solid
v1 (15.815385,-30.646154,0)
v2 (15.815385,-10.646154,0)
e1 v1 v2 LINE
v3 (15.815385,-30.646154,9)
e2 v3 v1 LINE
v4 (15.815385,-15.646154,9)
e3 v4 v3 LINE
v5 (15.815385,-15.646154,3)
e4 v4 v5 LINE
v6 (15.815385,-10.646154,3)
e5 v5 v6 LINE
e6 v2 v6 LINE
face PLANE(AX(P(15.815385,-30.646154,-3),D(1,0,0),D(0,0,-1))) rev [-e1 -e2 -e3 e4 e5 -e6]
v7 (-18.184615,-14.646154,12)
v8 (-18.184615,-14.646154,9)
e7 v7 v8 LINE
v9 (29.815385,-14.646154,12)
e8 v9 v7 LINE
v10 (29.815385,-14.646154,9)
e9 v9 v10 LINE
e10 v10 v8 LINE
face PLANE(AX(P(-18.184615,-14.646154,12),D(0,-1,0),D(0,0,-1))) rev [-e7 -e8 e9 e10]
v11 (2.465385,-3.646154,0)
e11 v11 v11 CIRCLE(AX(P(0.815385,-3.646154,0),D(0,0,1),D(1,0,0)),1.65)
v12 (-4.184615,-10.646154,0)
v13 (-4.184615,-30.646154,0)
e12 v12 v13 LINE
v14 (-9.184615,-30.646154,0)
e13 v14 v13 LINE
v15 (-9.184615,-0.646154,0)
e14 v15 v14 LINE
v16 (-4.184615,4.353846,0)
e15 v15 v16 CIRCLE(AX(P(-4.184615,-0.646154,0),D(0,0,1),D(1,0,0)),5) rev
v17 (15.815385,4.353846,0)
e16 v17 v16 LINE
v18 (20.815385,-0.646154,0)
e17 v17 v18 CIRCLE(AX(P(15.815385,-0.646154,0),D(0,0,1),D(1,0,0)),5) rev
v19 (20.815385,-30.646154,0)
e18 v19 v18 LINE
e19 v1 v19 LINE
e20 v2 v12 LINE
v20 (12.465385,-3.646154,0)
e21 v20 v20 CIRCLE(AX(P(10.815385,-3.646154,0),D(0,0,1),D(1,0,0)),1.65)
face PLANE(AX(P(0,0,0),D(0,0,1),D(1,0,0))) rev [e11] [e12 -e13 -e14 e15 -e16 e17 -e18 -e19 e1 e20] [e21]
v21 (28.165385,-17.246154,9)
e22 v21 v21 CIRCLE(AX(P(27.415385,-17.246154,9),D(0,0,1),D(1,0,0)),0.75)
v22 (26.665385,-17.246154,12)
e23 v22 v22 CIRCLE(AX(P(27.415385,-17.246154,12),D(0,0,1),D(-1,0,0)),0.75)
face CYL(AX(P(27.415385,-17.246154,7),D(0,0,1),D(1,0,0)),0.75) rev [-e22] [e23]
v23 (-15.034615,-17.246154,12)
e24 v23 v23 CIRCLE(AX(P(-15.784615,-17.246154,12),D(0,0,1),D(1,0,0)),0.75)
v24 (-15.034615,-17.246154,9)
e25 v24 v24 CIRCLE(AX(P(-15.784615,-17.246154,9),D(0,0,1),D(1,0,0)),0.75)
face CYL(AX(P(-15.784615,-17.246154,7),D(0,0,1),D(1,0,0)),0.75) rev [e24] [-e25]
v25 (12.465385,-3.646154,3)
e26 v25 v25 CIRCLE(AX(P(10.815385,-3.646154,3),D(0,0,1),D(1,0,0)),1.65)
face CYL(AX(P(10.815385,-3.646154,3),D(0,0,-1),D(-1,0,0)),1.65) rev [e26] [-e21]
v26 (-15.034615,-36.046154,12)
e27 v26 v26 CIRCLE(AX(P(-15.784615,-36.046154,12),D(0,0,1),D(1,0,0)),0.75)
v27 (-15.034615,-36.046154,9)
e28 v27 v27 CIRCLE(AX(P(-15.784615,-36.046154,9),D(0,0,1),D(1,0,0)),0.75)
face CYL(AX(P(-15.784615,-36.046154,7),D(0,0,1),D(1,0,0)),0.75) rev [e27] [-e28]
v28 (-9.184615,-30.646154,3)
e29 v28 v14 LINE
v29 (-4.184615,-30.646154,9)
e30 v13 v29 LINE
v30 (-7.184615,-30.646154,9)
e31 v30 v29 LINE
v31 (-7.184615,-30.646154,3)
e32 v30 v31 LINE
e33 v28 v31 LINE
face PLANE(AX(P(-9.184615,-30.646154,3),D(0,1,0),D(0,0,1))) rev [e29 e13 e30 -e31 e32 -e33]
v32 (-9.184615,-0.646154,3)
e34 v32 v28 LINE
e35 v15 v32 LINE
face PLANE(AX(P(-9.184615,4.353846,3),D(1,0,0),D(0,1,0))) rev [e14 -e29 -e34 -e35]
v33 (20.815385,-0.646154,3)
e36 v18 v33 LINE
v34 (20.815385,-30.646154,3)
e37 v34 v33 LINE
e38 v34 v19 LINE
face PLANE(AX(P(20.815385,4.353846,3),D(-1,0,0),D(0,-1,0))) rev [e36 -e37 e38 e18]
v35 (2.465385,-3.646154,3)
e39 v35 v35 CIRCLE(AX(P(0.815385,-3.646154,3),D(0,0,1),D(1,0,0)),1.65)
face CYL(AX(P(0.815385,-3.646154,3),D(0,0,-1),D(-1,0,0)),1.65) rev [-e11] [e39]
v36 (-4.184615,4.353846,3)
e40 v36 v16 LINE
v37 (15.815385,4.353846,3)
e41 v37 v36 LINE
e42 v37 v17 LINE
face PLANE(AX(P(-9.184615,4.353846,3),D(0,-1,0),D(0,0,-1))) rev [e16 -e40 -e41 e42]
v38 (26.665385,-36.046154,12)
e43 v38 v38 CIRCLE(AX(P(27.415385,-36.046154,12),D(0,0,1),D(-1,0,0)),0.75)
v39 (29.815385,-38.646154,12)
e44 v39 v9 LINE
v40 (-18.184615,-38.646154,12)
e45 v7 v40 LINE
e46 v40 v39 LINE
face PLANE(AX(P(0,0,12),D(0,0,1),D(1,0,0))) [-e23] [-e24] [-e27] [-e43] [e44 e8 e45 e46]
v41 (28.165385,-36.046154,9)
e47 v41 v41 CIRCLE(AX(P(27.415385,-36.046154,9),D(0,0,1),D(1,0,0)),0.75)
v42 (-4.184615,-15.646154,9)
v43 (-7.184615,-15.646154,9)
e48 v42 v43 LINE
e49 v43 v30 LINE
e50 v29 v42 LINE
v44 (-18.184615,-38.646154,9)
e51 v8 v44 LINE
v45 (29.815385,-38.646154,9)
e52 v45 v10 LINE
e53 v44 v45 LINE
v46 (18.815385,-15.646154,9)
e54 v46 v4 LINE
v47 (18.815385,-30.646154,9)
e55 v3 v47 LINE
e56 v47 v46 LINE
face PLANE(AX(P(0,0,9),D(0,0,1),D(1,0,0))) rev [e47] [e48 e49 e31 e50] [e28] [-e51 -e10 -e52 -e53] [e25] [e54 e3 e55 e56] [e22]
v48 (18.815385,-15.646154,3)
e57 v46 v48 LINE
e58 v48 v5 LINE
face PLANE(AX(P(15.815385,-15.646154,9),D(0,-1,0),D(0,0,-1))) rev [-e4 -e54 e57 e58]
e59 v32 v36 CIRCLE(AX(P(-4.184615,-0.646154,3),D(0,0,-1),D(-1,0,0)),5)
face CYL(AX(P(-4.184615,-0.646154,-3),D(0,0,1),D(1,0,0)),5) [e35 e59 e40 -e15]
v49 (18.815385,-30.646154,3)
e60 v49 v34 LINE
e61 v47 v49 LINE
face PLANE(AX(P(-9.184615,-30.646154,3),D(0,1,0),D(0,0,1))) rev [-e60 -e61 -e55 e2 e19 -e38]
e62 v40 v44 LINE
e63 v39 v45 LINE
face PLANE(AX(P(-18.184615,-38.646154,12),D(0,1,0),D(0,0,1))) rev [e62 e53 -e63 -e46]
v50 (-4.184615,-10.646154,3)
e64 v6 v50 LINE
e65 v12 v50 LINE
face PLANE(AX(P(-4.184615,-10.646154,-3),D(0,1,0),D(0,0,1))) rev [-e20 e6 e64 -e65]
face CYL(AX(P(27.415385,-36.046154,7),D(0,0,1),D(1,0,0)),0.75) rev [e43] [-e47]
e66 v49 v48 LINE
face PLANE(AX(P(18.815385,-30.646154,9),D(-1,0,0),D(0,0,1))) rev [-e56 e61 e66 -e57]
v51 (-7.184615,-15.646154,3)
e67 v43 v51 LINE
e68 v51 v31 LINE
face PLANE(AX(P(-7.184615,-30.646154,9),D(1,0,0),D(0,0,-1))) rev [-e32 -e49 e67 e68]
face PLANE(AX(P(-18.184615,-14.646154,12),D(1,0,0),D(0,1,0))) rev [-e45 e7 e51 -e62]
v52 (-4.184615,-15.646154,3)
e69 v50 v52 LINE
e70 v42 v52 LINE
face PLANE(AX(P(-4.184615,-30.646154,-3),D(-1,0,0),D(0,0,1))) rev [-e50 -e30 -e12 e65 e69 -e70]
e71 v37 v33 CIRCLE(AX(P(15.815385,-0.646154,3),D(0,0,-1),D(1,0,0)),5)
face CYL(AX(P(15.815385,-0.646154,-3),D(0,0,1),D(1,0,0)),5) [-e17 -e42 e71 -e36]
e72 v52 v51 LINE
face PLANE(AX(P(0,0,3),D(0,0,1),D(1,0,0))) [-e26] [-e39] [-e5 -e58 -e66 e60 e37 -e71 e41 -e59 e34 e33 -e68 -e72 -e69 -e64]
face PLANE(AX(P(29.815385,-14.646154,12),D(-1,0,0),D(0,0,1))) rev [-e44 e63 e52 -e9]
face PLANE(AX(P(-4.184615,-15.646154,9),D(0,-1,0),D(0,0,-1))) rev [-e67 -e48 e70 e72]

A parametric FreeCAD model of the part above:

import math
import FreeCAD as App
import Part
import Sketcher
from FreeCAD import Vector
Q = App.Units.Quantity


def add_polygon(sketch, points):
    """Adds a closed chain of lines whose ends are joined by coincident constraints."""
    first, n = sketch.GeometryCount, len(points)
    for a, b in zip(points, points[1:] + points[:1]):
        sketch.addGeometry(Part.LineSegment(App.Vector(*a, 0), App.Vector(*b, 0)), False)
    for i in range(n):
        sketch.addConstraint(Sketcher.Constraint("Coincident", first + i, 2, first + (i + 1) % n, 1))

doc = App.newDocument("Part")
params = doc.addObject("Spreadsheet::Sheet", "Params")
for row, (alias, value) in enumerate([
    ("sketch1_diameter", "3.3 mm"),
    ("sketch1_width", "30 mm"),
    ("sketch1_height", "35 mm"),
    ("pad1_length", "3 mm"),
    ("sketch2_radius", "5 mm"),
    ("sketch2_width", "20 mm"),
    ("pocket1_length", "6 mm"),
    ("sketch3_width", "3 mm"),
    ("sketch3_height", "15 mm"),
    ("pad2_length", "6 mm"),
    ("sketch4_width", "48 mm"),
    ("sketch4_height", "24 mm"),
    ("pad3_length", "3 mm"),
    ("sketch5_diameter", "1.5 mm"),
    ("pocket2_length", "5 mm"),
], start=1):
    params.set(f"A{row}", alias)
    params.set(f"B{row}", "=" + value)
    params.setAlias(f"B{row}", alias)

body = doc.addObject("PartDesign::Body", "Body")

# Sketch on XY plane
sketch1 = body.newObject("Sketcher::SketchObject", "Sketch")
sketch1.AttachmentSupport = (doc.getObject("XY_Plane"), [""])
sketch1.MapMode = "FlatFace"
add_polygon(sketch1, [(-9.2, 4.4), (-9.2, -30.6), (20.8, -30.6), (20.8, 4.4)])  # lines 0-3
sketch1.addGeometry(Part.Circle(Vector(0.8, -3.6, 0), Vector(0, 0, 1), 1.6), False)  # 4
sketch1.addGeometry(Part.Circle(Vector(10.8, -3.6, 0), Vector(0, 0, 1), 1.6), False)  # 5
sketch1.addConstraint(Sketcher.Constraint("Vertical", 0))
sketch1.addConstraint(Sketcher.Constraint("Horizontal", 1))
sketch1.addConstraint(Sketcher.Constraint("Vertical", 2))
sketch1.addConstraint(Sketcher.Constraint("Horizontal", 3))
sketch1.addConstraint(Sketcher.Constraint("Equal", 4, 5))
sketch1.addConstraint(Sketcher.Constraint("Horizontal", 4, 3, 5, 3))
sketch1.addConstraint(Sketcher.Constraint("Diameter", 4, Q("3.3 mm")))
sketch1.addConstraint(Sketcher.Constraint("DistanceX", 1, 1, 1, 2, Q("30 mm")))
sketch1.addConstraint(Sketcher.Constraint("DistanceY", 0, 2, 0, 1, Q("35 mm")))
sketch1.addConstraint(Sketcher.Constraint("DistanceX", 4, 3, 5, 3, Q("10 mm")))
sketch1.addConstraint(Sketcher.Constraint("DistanceX", 0, 2, 4, 3, Q("10 mm")))
sketch1.addConstraint(Sketcher.Constraint("DistanceY", 0, 2, 4, 3, Q("27 mm")))
sketch1.addConstraint(Sketcher.Constraint("DistanceX", -1, 1, 4, 3, Q("0.815385 mm")))
sketch1.addConstraint(Sketcher.Constraint("DistanceY", 4, 3, -1, 1, Q("3.646154 mm")))
sketch1.setExpression("Constraints[10]", "Params.sketch1_diameter")
sketch1.setExpression("Constraints[11]", "Params.sketch1_width")
sketch1.setExpression("Constraints[12]", "Params.sketch1_height")
pad1 = body.newObject("PartDesign::Pad", "Pad")
pad1.Profile = sketch1
pad1.setExpression("Length", "Params.pad1_length")

# Sketch on XY plane
sketch2 = body.newObject("Sketcher::SketchObject", "Sketch001")
sketch2.AttachmentSupport = (doc.getObject("XY_Plane"), [""])
sketch2.MapMode = "FlatFace"
sketch2.AttachmentOffset = App.Placement(Vector(0, 0, 3), App.Rotation())
add_polygon(sketch2, [(-4, -11), (-4, -31), (16, -31), (16, -11)])  # lines 0-3
sketch2.addGeometry(Part.LineSegment(Vector(-9, 4, 0), Vector(-9, -1, 0)), False)  # 4
sketch2.addGeometry(Part.ArcOfCircle(Part.Circle(Vector(-4, -1, 0), Vector(0, 0, 1), 5), math.radians(90), math.radians(180)), False)  # 5
sketch2.addGeometry(Part.LineSegment(Vector(-4, 4, 0), Vector(-9, 4, 0)), False)  # 6
sketch2.addGeometry(Part.LineSegment(Vector(21, -1, 0), Vector(21, 4, 0)), False)  # 7
sketch2.addGeometry(Part.LineSegment(Vector(21, 4, 0), Vector(16, 4, 0)), False)  # 8
sketch2.addGeometry(Part.ArcOfCircle(Part.Circle(Vector(16, -1, 0), Vector(0, 0, 1), 5), math.radians(0), math.radians(90)), False)  # 9
sketch2.addConstraint(Sketcher.Constraint("Tangent", 4, 2, 5, 2))
sketch2.addConstraint(Sketcher.Constraint("Tangent", 5, 1, 6, 1))
sketch2.addConstraint(Sketcher.Constraint("Coincident", 6, 2, 4, 1))
sketch2.addConstraint(Sketcher.Constraint("Coincident", 7, 2, 8, 1))
sketch2.addConstraint(Sketcher.Constraint("Tangent", 8, 2, 9, 2))
sketch2.addConstraint(Sketcher.Constraint("Tangent", 9, 1, 7, 1))
sketch2.addConstraint(Sketcher.Constraint("Vertical", 0))
sketch2.addConstraint(Sketcher.Constraint("Horizontal", 1))
sketch2.addConstraint(Sketcher.Constraint("Vertical", 2))
sketch2.addConstraint(Sketcher.Constraint("Horizontal", 3))
sketch2.addConstraint(Sketcher.Constraint("Vertical", 4))
sketch2.addConstraint(Sketcher.Constraint("Horizontal", 6))
sketch2.addConstraint(Sketcher.Constraint("Vertical", 7))
sketch2.addConstraint(Sketcher.Constraint("Horizontal", 8))
sketch2.addConstraint(Sketcher.Constraint("Equal", 5, 9))
sketch2.addConstraint(Sketcher.Constraint("Horizontal", 5, 3, 9, 3))
sketch2.addConstraint(Sketcher.Constraint("Vertical", 5, 3, 0, 2))
sketch2.addConstraint(Sketcher.Constraint("Vertical", 9, 3, 1, 2))
sketch2.addConstraint(Sketcher.Constraint("Equal", 3, 0))
sketch2.addConstraint(Sketcher.Constraint("Radius", 5, Q("5 mm")))
sketch2.addConstraint(Sketcher.Constraint("DistanceX", 1, 1, 1, 2, Q("20 mm")))
sketch2.addConstraint(Sketcher.Constraint("DistanceY", 0, 2, 5, 3, Q("30 mm")))
sketch2.addConstraint(Sketcher.Constraint("DistanceX", 5, 3, -1, 1, Q("4.184615 mm")))
sketch2.addConstraint(Sketcher.Constraint("DistanceY", 5, 3, -1, 1, Q("0.646154 mm")))
sketch2.setExpression("Constraints[23]", "Params.sketch2_radius")
sketch2.setExpression("Constraints[24]", "Params.sketch2_width")
pocket1 = body.newObject("PartDesign::Pocket", "Pocket")
pocket1.Profile = sketch2
pocket1.setExpression("Length", "Params.pocket1_length")

# Sketch on XY plane
sketch3 = body.newObject("Sketcher::SketchObject", "Sketch002")
sketch3.AttachmentSupport = (doc.getObject("XY_Plane"), [""])
sketch3.MapMode = "FlatFace"
sketch3.AttachmentOffset = App.Placement(Vector(0, 0, 3), App.Rotation())
add_polygon(sketch3, [(-7.2, -15.6), (-7.2, -30.6), (-4.2, -30.6), (-4.2, -15.6)])  # lines 0-3
add_polygon(sketch3, [(15.8, -15.6), (15.8, -30.6), (18.8, -30.6), (18.8, -15.6)])  # lines 4-7
sketch3.addConstraint(Sketcher.Constraint("Vertical", 0))
sketch3.addConstraint(Sketcher.Constraint("Horizontal", 1))
sketch3.addConstraint(Sketcher.Constraint("Vertical", 2))
sketch3.addConstraint(Sketcher.Constraint("Horizontal", 3))
sketch3.addConstraint(Sketcher.Constraint("Vertical", 4))
sketch3.addConstraint(Sketcher.Constraint("Horizontal", 5))
sketch3.addConstraint(Sketcher.Constraint("Vertical", 6))
sketch3.addConstraint(Sketcher.Constraint("Horizontal", 7))
sketch3.addConstraint(Sketcher.Constraint("Horizontal", 1, 2, 4, 2))
sketch3.addConstraint(Sketcher.Constraint("Horizontal", 3, 2, 6, 2))
sketch3.addConstraint(Sketcher.Constraint("Equal", 3, 5))
sketch3.addConstraint(Sketcher.Constraint("DistanceX", 1, 1, 1, 2, Q("3 mm")))
sketch3.addConstraint(Sketcher.Constraint("DistanceY", 0, 2, 0, 1, Q("15 mm")))
sketch3.addConstraint(Sketcher.Constraint("DistanceX", 1, 2, 4, 2, Q("20 mm")))
sketch3.addConstraint(Sketcher.Constraint("DistanceX", 0, 2, -1, 1, Q("7.184615 mm")))
sketch3.addConstraint(Sketcher.Constraint("DistanceY", 0, 2, -1, 1, Q("30.646154 mm")))
sketch3.setExpression("Constraints[19]", "Params.sketch3_width")
sketch3.setExpression("Constraints[20]", "Params.sketch3_height")
pad2 = body.newObject("PartDesign::Pad", "Pad001")
pad2.Profile = sketch3
pad2.setExpression("Length", "Params.pad2_length")

# Sketch on XY plane
sketch4 = body.newObject("Sketcher::SketchObject", "Sketch003")
sketch4.AttachmentSupport = (doc.getObject("XY_Plane"), [""])
sketch4.MapMode = "FlatFace"
sketch4.AttachmentOffset = App.Placement(Vector(0, 0, 9), App.Rotation())
add_polygon(sketch4, [(-18, -15), (-18, -39), (30, -39), (30, -15)])  # lines 0-3
sketch4.addConstraint(Sketcher.Constraint("Vertical", 0))
sketch4.addConstraint(Sketcher.Constraint("Horizontal", 1))
sketch4.addConstraint(Sketcher.Constraint("Vertical", 2))
sketch4.addConstraint(Sketcher.Constraint("Horizontal", 3))
sketch4.addConstraint(Sketcher.Constraint("DistanceX", 1, 1, 1, 2, Q("48 mm")))
sketch4.addConstraint(Sketcher.Constraint("DistanceY", 0, 2, 0, 1, Q("24 mm")))
sketch4.addConstraint(Sketcher.Constraint("DistanceX", 0, 2, -1, 1, Q("18.184615 mm")))
sketch4.addConstraint(Sketcher.Constraint("DistanceY", 0, 2, -1, 1, Q("38.646154 mm")))
sketch4.setExpression("Constraints[8]", "Params.sketch4_width")
sketch4.setExpression("Constraints[9]", "Params.sketch4_height")
pad3 = body.newObject("PartDesign::Pad", "Pad002")
pad3.Profile = sketch4
pad3.setExpression("Length", "Params.pad3_length")

# Sketch on XY plane
sketch5 = body.newObject("Sketcher::SketchObject", "Sketch004")
sketch5.AttachmentSupport = (doc.getObject("XY_Plane"), [""])
sketch5.MapMode = "FlatFace"
sketch5.AttachmentOffset = App.Placement(Vector(0, 0, 12), App.Rotation())
sketch5.addGeometry(Part.Circle(Vector(-15.8, -17.2, 0), Vector(0, 0, 1), 0.8), False)
sketch5.addGeometry(Part.Circle(Vector(-15.8, -36, 0), Vector(0, 0, 1), 0.8), False)
sketch5.addGeometry(Part.Circle(Vector(27.4, -36, 0), Vector(0, 0, 1), 0.8), False)
sketch5.addGeometry(Part.Circle(Vector(27.4, -17.2, 0), Vector(0, 0, 1), 0.8), False)
sketch5.addConstraint(Sketcher.Constraint("Equal", 0, 1))
sketch5.addConstraint(Sketcher.Constraint("Equal", 1, 2))
sketch5.addConstraint(Sketcher.Constraint("Equal", 2, 3))
sketch5.addConstraint(Sketcher.Constraint("Horizontal", 1, 3, 2, 3))
sketch5.addConstraint(Sketcher.Constraint("Horizontal", 0, 3, 3, 3))
sketch5.addConstraint(Sketcher.Constraint("Vertical", 0, 3, 1, 3))
sketch5.addConstraint(Sketcher.Constraint("Vertical", 2, 3, 3, 3))
sketch5.addConstraint(Sketcher.Constraint("Diameter", 0, Q("1.5 mm")))
sketch5.addConstraint(Sketcher.Constraint("DistanceY", 1, 3, 0, 3, Q("18.8 mm")))
sketch5.addConstraint(Sketcher.Constraint("DistanceX", 1, 3, 2, 3, Q("43.2 mm")))
sketch5.addConstraint(Sketcher.Constraint("DistanceX", 0, 3, -1, 1, Q("15.784615 mm")))
sketch5.addConstraint(Sketcher.Constraint("DistanceY", 0, 3, -1, 1, Q("17.246154 mm")))
sketch5.setExpression("Constraints[7]", "Params.sketch5_diameter")
pocket2 = body.newObject("PartDesign::Pocket", "Pocket001")
pocket2.Profile = sketch5
pocket2.setExpression("Length", "Params.pocket2_length")

doc.recompute()
